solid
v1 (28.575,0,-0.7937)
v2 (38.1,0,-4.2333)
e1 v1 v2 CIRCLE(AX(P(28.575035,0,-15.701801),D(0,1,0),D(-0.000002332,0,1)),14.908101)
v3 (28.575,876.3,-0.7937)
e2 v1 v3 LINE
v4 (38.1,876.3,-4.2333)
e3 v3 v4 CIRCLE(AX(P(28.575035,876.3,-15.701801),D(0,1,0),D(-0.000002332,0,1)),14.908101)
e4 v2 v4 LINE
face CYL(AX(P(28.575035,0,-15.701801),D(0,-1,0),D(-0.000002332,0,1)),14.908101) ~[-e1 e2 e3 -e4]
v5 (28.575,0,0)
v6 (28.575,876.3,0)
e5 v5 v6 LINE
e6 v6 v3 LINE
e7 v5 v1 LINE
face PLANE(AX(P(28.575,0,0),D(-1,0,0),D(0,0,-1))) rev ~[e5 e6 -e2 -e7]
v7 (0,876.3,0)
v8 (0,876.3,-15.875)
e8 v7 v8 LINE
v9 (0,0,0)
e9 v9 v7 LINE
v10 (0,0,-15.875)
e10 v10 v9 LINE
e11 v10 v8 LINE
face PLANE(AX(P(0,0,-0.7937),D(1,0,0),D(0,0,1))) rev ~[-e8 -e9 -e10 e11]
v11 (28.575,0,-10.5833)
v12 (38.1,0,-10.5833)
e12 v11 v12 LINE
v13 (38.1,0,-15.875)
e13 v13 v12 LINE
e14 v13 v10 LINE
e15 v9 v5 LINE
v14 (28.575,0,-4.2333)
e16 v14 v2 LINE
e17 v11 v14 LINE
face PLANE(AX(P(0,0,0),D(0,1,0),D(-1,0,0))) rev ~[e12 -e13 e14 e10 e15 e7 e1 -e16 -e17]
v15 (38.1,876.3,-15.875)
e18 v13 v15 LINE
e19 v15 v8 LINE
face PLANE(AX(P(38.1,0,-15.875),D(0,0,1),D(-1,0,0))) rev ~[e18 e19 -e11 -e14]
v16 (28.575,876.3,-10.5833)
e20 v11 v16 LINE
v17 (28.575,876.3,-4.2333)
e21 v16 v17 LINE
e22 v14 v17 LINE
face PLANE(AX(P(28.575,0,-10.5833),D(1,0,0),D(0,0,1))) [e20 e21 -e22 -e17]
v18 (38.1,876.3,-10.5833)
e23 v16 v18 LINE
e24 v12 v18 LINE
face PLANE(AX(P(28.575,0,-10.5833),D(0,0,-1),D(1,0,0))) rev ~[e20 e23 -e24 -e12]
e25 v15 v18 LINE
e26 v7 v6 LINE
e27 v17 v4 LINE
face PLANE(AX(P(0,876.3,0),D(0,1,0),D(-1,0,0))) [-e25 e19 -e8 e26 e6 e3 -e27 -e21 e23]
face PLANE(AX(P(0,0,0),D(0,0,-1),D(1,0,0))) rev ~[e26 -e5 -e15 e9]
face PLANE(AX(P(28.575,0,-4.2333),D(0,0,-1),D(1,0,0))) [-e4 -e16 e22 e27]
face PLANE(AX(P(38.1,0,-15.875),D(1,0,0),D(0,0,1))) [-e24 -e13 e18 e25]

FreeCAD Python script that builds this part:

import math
import FreeCAD as App
import Part
import Sketcher

V = App.Vector
Q = App.Units.Quantity

doc = App.newDocument("Part")
body = doc.addObject("PartDesign::Body", "Body")

sketch1 = body.newObject("Sketcher::SketchObject", "Sketch")
sketch1.AttachmentSupport = (doc.getObject("XZ_Plane"), [""])
sketch1.MapMode = "FlatFace"
sketch1.addGeometry([
    Part.LineSegment(V(0, 0, 0), V(28.6, 0, 0)),
    Part.LineSegment(V(28.6, 0, 0), V(28.6, -0.8, 0)),
    Part.ArcOfCircle(Part.Circle(V(28.6, -15.7, 0), V(0, 0, 1), 14.9), math.radians(50), math.radians(90)),
    Part.LineSegment(V(38.1, -4.2, 0), V(28.6, -4.2, 0)),
    Part.LineSegment(V(28.6, -4.2, 0), V(28.6, -10.6, 0)),
    Part.LineSegment(V(28.6, -10.6, 0), V(38.1, -10.6, 0)),
    Part.LineSegment(V(38.1, -10.6, 0), V(38.1, -15.9, 0)),
    Part.LineSegment(V(38.1, -15.9, 0), V(0, -15.9, 0)),
    Part.LineSegment(V(0, -15.9, 0), V(0, 0, 0)),
], False)
sketch1.addConstraint([
    Sketcher.Constraint("Coincident", 0, 2, 1, 1),
    Sketcher.Constraint("Coincident", 1, 2, 2, 2),
    Sketcher.Constraint("Coincident", 2, 1, 3, 1),
    Sketcher.Constraint("Coincident", 3, 2, 4, 1),
    Sketcher.Constraint("Coincident", 4, 2, 5, 1),
    Sketcher.Constraint("Coincident", 5, 2, 6, 1),
    Sketcher.Constraint("Coincident", 6, 2, 7, 1),
    Sketcher.Constraint("Coincident", 7, 2, 8, 1),
    Sketcher.Constraint("Coincident", 8, 2, 0, 1),
    Sketcher.Constraint("Horizontal", 0),
    Sketcher.Constraint("Vertical", 1),
    Sketcher.Constraint("Horizontal", 3),
    Sketcher.Constraint("Vertical", 4),
    Sketcher.Constraint("Horizontal", 5),
    Sketcher.Constraint("Vertical", 6),
    Sketcher.Constraint("Horizontal", 7),
    Sketcher.Constraint("Vertical", 8),
    Sketcher.Constraint("Coincident", 8, 2, -1, 1),
    Sketcher.Constraint("Vertical", 2, 3, 0, 2),
    Sketcher.Constraint("Vertical", 1, 2, 3, 2),
    Sketcher.Constraint("Vertical", 2, 1, 5, 2),
    Sketcher.Constraint("DistanceX", 7, 2, 7, 1, Q("1.5 in")),
    Sketcher.Constraint("DistanceY", 4, 2, 4, 1, Q("0.25 in")),
    Sketcher.Constraint("DistanceX", 0, 1, 0, 2, Q("1.125 in")),
    Sketcher.Constraint("DistanceY", 1, 2, 1, 1, Q("0.031248 in")),
    Sketcher.Constraint("DistanceY", 8, 1, 8, 2, Q("0.625 in")),
    Sketcher.Constraint("Radius", 2, 14.9083),
])
pad1 = body.newObject("PartDesign::Pad", "Pad")
pad1.Profile = sketch1
pad1.Length = Q("34.5 in")
pad1.Reversed = True

doc.recompute()
